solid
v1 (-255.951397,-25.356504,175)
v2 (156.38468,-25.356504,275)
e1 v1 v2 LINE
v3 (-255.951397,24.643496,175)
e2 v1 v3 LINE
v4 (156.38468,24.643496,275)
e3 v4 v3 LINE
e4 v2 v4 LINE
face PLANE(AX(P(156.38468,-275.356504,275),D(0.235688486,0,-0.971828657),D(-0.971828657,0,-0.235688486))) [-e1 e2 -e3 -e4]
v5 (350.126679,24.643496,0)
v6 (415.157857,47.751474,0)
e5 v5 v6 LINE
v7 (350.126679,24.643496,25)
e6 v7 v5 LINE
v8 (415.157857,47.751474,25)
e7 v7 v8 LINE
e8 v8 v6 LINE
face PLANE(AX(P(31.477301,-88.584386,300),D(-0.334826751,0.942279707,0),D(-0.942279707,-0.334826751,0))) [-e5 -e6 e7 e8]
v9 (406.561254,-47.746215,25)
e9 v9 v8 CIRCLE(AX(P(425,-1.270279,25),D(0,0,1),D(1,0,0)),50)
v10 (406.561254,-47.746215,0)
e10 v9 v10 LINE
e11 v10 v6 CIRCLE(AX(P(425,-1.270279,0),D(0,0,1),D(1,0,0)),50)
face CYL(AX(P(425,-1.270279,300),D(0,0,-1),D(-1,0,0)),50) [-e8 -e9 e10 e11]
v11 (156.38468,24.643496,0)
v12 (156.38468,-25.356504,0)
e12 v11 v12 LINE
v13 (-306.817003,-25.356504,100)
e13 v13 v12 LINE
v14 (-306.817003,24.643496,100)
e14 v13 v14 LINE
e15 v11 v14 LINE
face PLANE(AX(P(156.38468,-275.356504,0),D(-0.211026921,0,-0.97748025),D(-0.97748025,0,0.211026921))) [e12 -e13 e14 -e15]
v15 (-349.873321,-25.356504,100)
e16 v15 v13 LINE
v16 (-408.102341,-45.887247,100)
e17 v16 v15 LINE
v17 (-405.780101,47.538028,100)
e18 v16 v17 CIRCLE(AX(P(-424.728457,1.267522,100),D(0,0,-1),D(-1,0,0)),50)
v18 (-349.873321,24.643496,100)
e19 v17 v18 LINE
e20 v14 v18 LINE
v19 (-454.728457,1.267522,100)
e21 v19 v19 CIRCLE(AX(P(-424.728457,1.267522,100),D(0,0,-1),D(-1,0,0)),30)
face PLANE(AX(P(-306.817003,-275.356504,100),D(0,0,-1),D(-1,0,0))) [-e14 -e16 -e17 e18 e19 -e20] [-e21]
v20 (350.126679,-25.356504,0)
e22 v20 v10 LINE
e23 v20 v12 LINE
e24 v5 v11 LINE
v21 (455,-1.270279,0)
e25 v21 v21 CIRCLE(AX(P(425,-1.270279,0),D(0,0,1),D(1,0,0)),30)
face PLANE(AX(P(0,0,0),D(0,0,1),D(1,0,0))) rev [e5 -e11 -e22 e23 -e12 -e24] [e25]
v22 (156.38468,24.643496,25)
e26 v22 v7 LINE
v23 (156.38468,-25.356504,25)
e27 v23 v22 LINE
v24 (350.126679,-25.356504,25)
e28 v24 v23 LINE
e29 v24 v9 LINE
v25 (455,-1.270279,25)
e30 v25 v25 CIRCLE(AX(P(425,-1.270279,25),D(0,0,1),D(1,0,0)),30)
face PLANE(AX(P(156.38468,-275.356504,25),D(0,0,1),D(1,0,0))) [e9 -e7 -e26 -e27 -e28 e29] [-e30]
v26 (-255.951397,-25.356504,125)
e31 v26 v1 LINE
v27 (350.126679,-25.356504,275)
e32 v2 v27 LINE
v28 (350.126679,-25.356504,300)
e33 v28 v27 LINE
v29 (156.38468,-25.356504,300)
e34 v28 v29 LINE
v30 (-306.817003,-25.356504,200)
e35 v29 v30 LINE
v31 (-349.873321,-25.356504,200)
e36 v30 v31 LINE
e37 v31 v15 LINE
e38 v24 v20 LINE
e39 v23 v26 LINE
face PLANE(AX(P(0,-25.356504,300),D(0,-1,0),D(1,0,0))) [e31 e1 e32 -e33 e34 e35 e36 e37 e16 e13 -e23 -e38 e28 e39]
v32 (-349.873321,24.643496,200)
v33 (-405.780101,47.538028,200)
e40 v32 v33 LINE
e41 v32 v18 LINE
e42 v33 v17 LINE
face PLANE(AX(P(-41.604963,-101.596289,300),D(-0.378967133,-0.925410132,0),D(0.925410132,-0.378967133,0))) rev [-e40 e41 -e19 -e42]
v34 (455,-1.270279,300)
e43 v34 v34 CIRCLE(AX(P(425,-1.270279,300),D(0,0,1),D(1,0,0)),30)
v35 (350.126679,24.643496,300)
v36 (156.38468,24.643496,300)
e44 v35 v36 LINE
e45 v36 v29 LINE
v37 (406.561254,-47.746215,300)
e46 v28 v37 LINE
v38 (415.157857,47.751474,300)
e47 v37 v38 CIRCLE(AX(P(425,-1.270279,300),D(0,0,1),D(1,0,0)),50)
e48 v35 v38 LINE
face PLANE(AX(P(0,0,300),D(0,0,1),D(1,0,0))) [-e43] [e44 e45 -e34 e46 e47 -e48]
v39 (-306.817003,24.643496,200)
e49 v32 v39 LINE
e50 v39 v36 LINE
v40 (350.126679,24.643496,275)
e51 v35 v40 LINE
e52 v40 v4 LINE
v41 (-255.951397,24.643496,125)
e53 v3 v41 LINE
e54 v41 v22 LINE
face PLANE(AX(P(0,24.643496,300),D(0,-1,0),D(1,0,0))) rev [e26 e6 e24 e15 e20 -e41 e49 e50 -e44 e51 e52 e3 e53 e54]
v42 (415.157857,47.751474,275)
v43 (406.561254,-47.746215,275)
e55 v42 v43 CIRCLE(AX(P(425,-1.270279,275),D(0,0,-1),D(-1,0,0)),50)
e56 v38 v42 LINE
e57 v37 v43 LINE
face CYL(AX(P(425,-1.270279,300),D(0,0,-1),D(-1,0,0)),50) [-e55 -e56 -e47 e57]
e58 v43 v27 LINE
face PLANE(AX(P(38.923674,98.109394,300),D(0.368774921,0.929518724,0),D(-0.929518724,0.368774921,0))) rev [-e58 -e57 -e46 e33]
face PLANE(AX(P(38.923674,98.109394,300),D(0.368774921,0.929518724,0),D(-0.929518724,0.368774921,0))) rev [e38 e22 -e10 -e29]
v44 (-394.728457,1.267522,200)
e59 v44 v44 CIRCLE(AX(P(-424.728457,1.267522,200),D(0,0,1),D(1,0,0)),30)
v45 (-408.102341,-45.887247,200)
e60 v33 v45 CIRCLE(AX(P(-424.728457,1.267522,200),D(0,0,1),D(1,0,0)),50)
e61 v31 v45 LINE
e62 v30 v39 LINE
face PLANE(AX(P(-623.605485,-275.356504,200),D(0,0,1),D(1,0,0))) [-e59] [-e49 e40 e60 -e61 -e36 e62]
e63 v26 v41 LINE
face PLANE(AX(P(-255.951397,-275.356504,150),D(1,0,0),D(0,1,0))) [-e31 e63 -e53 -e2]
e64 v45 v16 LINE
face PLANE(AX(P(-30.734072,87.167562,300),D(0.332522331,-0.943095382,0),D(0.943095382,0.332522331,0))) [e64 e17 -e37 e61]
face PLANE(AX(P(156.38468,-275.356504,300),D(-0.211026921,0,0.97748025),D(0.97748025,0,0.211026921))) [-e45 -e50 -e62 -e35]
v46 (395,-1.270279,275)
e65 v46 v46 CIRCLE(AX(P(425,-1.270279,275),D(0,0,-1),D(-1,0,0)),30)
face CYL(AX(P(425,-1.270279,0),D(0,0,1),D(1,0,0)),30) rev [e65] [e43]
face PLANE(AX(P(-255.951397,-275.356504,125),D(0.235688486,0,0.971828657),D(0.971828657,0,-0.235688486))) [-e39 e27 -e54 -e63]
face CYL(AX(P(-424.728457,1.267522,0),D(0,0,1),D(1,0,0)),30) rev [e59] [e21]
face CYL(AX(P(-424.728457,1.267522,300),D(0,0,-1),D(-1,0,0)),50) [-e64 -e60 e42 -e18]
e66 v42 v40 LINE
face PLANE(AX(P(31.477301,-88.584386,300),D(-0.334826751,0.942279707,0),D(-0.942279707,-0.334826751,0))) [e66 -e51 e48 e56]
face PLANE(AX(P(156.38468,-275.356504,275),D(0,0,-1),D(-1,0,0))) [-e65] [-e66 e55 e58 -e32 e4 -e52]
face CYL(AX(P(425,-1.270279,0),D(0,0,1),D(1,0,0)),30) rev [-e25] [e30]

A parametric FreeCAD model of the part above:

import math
import FreeCAD as App
import Part
import Sketcher
Q = App.Units.Quantity


def add_polygon(sketch, points):
    """Adds a closed chain of lines whose ends are joined by coincident constraints."""
    first, n = sketch.GeometryCount, len(points)
    for a, b in zip(points, points[1:] + points[:1]):
        sketch.addGeometry(Part.LineSegment(App.Vector(*a, 0), App.Vector(*b, 0)), False)
    for i in range(n):
        sketch.addConstraint(Sketcher.Constraint("Coincident", first + i, 2, first + (i + 1) % n, 1))

doc = App.newDocument("Part")
params = doc.addObject("Spreadsheet::Sheet", "Params")
for row, (alias, value) in enumerate([
    ("sketch1_radius", "50 mm"),
    ("sketch1_width", "700 mm"),
    ("pad1_length", "300 mm"),
    ("sketch2_height", "50 mm"),
    ("pocket1_length", "300 mm"),
    ("sketch3_height", "50 mm"),
    ("sketch3_height2", "250 mm"),
    ("pocket2_length", "300 mm"),
    ("sketch4_diameter", "60 mm"),
    ("pocket3_length", "400 mm"),
], start=1):
    params.set(f"A{row}", alias)
    params.set(f"B{row}", "=" + value)
    params.setAlias(f"B{row}", alias)

body = doc.addObject("PartDesign::Body", "Body")

sketch1 = body.newObject("Sketcher::SketchObject", "Sketch")
sketch1.AttachmentSupport = (doc.getObject("XY_Plane"), [""])
sketch1.MapMode = "FlatFace"
sketch1.addGeometry([
    Part.LineSegment(App.Vector(350.126679, 24.643496, 0), App.Vector(-349.873321, 24.643496, 0)),
    Part.LineSegment(App.Vector(-349.873321, 24.643496, 0), App.Vector(-405.780101, 47.538028, 0)),
    Part.ArcOfCircle(Part.Circle(App.Vector(-424.728457, 1.267522, 0), App.Vector(0, 0, 1), 50), math.radians(67.730281), math.radians(289.421942)),
    Part.LineSegment(App.Vector(-408.102341, -45.887247, 0), App.Vector(-349.873321, -25.356504, 0)),
    Part.LineSegment(App.Vector(-349.873321, -25.356504, 0), App.Vector(350.126679, -25.356504, 0)),
    Part.LineSegment(App.Vector(350.126679, -25.356504, 0), App.Vector(406.561254, -47.746215, 0)),
    Part.ArcOfCircle(Part.Circle(App.Vector(425, -1.270279, 0), App.Vector(0, 0, 1), 50), math.radians(-111.640083), math.radians(101.352398)),
    Part.LineSegment(App.Vector(415.157857, 47.751474, 0), App.Vector(401.702588, 42.97032, 0)),
    Part.LineSegment(App.Vector(401.702588, 42.97032, 0), App.Vector(350.126679, 24.643496, 0)),
], False)
sketch1.addConstraint([
    Sketcher.Constraint("Coincident", 0, 2, 1, 1),
    Sketcher.Constraint("Tangent", 1, 2, 2, 1),
    Sketcher.Constraint("Tangent", 2, 2, 3, 1),
    Sketcher.Constraint("Coincident", 3, 2, 4, 1),
    Sketcher.Constraint("Coincident", 4, 2, 5, 1),
    Sketcher.Constraint("Tangent", 5, 2, 6, 1),
    Sketcher.Constraint("Coincident", 6, 2, 7, 1),
    Sketcher.Constraint("Coincident", 7, 2, 8, 1),
    Sketcher.Constraint("Coincident", 8, 2, 0, 1),
    Sketcher.Constraint("Horizontal", 0),
    Sketcher.Constraint("Horizontal", 4),
    Sketcher.Constraint("Equal", 2, 6),
    Sketcher.Constraint("Parallel", 7, 8),
    Sketcher.Constraint("Vertical", 0, 2, 3, 2),
    Sketcher.Constraint("Vertical", 4, 2, 8, 2),
    Sketcher.Constraint("Radius", 2, Q("50 mm")),
    Sketcher.Constraint("DistanceX", 0, 2, 0, 1, Q("700 mm")),
    Sketcher.Constraint("DistanceX", -1, 1, 6, 3, Q("425 mm")),
    Sketcher.Constraint("DistanceY", 3, 2, 0, 2, Q("50 mm")),
    Sketcher.Constraint("DistanceX", 1, 2, -1, 1, Q("405.780101 mm")),
    Sketcher.Constraint("DistanceY", 6, 3, 2, 3, Q("2.537801 mm")),
    Sketcher.Constraint("DistanceY", 6, 3, 7, 2, Q("44.240599 mm")),
    Sketcher.Constraint("Distance", 3, Q("61.74245 mm")),
    Sketcher.Constraint("Distance", 5, Q("60.713758 mm")),
    Sketcher.Constraint("DistanceY", -1, 1, 2, 3, Q("1.267522 mm")),
    Sketcher.Constraint("DistanceY", 5, 2, 6, 2, Q("95.497689 mm")),
])
sketch1.setExpression("Constraints[15]", "Params.sketch1_radius")
sketch1.setExpression("Constraints[16]", "Params.sketch1_width")
pad1 = body.newObject("PartDesign::Pad", "Pad")
pad1.Profile = sketch1
pad1.setExpression("Length", "Params.pad1_length")

sketch2 = body.newObject("Sketcher::SketchObject", "Sketch001")
sketch2.AttachmentSupport = (doc.getObject("XZ_Plane"), [""])
sketch2.MapMode = "FlatFace"
sketch2.AttachmentOffset = App.Placement(App.Vector(0, 0, -24.643496), App.Rotation())
add_polygon(sketch2, [(-575.853, 200), (-575.853, 401.125), (576.125, 401.125), (576.125, 25), (156.38468, 25), (-255.951397, 125), (-255.951397, 175), (156.38468, 275), (523.266387, 275), (568.093934, 300), (156.38468, 300), (-306.817003, 200)])
add_polygon(sketch2, [(-575.853, -101.125), (-575.853, 100), (-306.817003, 100), (156.38468, 0), (576.125, 0), (576.125, -101.125)])
sketch2.addConstraint([
    Sketcher.Constraint("Vertical", 0),
    Sketcher.Constraint("Horizontal", 1),
    Sketcher.Constraint("Vertical", 2),
    Sketcher.Constraint("Horizontal", 3),
    Sketcher.Constraint("Vertical", 5),
    Sketcher.Constraint("Horizontal", 7),
    Sketcher.Constraint("Horizontal", 9),
    Sketcher.Constraint("Horizontal", 11),
    Sketcher.Constraint("Vertical", 12),
    Sketcher.Constraint("Horizontal", 13),
    Sketcher.Constraint("Horizontal", 15),
    Sketcher.Constraint("Vertical", 16),
    Sketcher.Constraint("Horizontal", 17),
    Sketcher.Constraint("PointOnObject", 14, 2, -1),
    Sketcher.Constraint("Vertical", 3, 2, 6, 2),
    Sketcher.Constraint("Vertical", 6, 2, 9, 2),
    Sketcher.Constraint("Vertical", 11, 2, 12, 2),
    Sketcher.Constraint("Vertical", 10, 2, 13, 2),
    Sketcher.Constraint("Vertical", 9, 2, 14, 2),
    Sketcher.Constraint("Vertical", 2, 2, 15, 2),
    Sketcher.Constraint("Equal", 0, 12),
    Sketcher.Constraint("Equal", 4, 6),
    Sketcher.Constraint("Equal", 10, 14),
    Sketcher.Constraint("DistanceY", 5, 1, 5, 2, Q("50 mm")),
    Sketcher.Constraint("DistanceY", -1, 1, 2, 2, Q("25 mm")),
    Sketcher.Constraint("DistanceY", -1, 1, 4, 2, Q("125 mm")),
    Sketcher.Constraint("DistanceY", -1, 1, 8, 2, Q("300 mm")),
    Sketcher.Constraint("DistanceY", -1, 1, 10, 2, Q("200 mm")),
    Sketcher.Constraint("DistanceX", 1, 1, 1, 2, Q("1151.978 mm")),
    Sketcher.Constraint("DistanceY", 0, 1, 0, 2, Q("201.125 mm")),
    Sketcher.Constraint("DistanceX", 0, 2, -1, 1, Q("575.853 mm")),
    Sketcher.Constraint("DistanceX", 3, 2, 3, 1, Q("419.74032 mm")),
    Sketcher.Constraint("Distance", 10, Q("473.873189 mm")),
    Sketcher.Constraint("DistanceX", 7, 1, 7, 2, Q("366.881707 mm")),
    Sketcher.Constraint("DistanceX", 9, 2, 9, 1, Q("411.709253 mm")),
    Sketcher.Constraint("Distance", 4, Q("424.288865 mm")),
])
sketch2.setExpression("Constraints[41]", "Params.sketch2_height")
pocket1 = body.newObject("PartDesign::Pocket", "Pocket")
pocket1.Profile = sketch2
pocket1.setExpression("Length", "Params.pocket1_length")
pocket1.Reversed = True

sketch3 = body.newObject("Sketcher::SketchObject", "Sketch002")
sketch3.AttachmentSupport = (doc.getObject("XZ_Plane"), [""])
sketch3.MapMode = "FlatFace"
sketch3.AttachmentOffset = App.Placement(App.Vector(0, 0, -24.643496), App.Rotation())
add_polygon(sketch3, [(555.921134, 25), (156.38468, 25), (-255.951397, 125), (-255.951397, 175), (156.38468, 275), (555.921134, 275)])
add_polygon(sketch3, [(-477.733616, 100), (-349.873321, 100), (-332.077067, -50.340528), (-477.733616, -50.340528)])
add_polygon(sketch3, [(-349.873321, 364.123748), (-349.873321, 200), (-481.519399, 200), (-511.890412, 324.647412)])
sketch3.addConstraint([
    Sketcher.Constraint("Horizontal", 0),
    Sketcher.Constraint("Vertical", 2),
    Sketcher.Constraint("Horizontal", 4),
    Sketcher.Constraint("Vertical", 5),
    Sketcher.Constraint("Horizontal", 6),
    Sketcher.Constraint("Horizontal", 8),
    Sketcher.Constraint("Vertical", 9),
    Sketcher.Constraint("Vertical", 10),
    Sketcher.Constraint("Horizontal", 11),
    Sketcher.Constraint("Perpendicular", 12, 13),
    Sketcher.Constraint("Vertical", 0, 2, 3, 2),
    Sketcher.Constraint("Vertical", 6, 2, 10, 2),
    Sketcher.Constraint("Equal", 1, 3),
    Sketcher.Constraint("DistanceY", 2, 1, 2, 2, Q("50 mm")),
    Sketcher.Constraint("DistanceY", 5, 2, 5, 1, Q("250 mm")),
    Sketcher.Constraint("DistanceY", -1, 1, 0, 2, Q("25 mm")),
    Sketcher.Constraint("DistanceY", -1, 1, 6, 2, Q("100 mm")),
    Sketcher.Constraint("DistanceY", -1, 1, 10, 2, Q("200 mm")),
    Sketcher.Constraint("DistanceX", 6, 2, 0, 2, Q("506.258001 mm")),
    Sketcher.Constraint("Distance", 12, Q("128.294098 mm")),
    Sketcher.Constraint("DistanceX", 8, 2, 8, 1, Q("145.656548 mm")),
    Sketcher.Constraint("DistanceX", 11, 2, 11, 1, Q("131.646078 mm")),
    Sketcher.Constraint("DistanceY", 10, 2, 10, 1, Q("164.123748 mm")),
    Sketcher.Constraint("DistanceX", 11, 2, -1, 1, Q("481.519399 mm")),
    Sketcher.Constraint("Distance", 7, Q("151.390162 mm")),
    Sketcher.Constraint("DistanceX", 0, 2, 0, 1, Q("399.536454 mm")),
    Sketcher.Constraint("DistanceX", 6, 1, 6, 2, Q("127.860295 mm")),
    Sketcher.Constraint("DistanceX", 2, 2, 4, 2, Q("811.872532 mm")),
])
sketch3.setExpression("Constraints[27]", "Params.sketch3_height")
sketch3.setExpression("Constraints[28]", "Params.sketch3_height2")
pocket2 = body.newObject("PartDesign::Pocket", "Pocket001")
pocket2.Profile = sketch3
pocket2.setExpression("Length", "Params.pocket2_length")

sketch4 = body.newObject("Sketcher::SketchObject", "Sketch003")
sketch4.AttachmentSupport = (doc.getObject("XY_Plane"), [""])
sketch4.MapMode = "FlatFace"
sketch4.AttachmentOffset = App.Placement(App.Vector(0, 0, 200), App.Rotation())
sketch4.addGeometry([
    Part.Circle(App.Vector(-424.728457, 1.267522, 0), App.Vector(0, 0, 1), 30),
    Part.Circle(App.Vector(425, -1.270279, 0), App.Vector(0, 0, 1), 30),
], False)
sketch4.addConstraint([
    Sketcher.Constraint("Equal", 0, 1),
    Sketcher.Constraint("Diameter", 0, Q("60 mm")),
    Sketcher.Constraint("DistanceX", -1, 1, 1, 3, Q("425 mm")),
    Sketcher.Constraint("DistanceY", 1, 3, 0, 3, Q("2.537801 mm")),
    Sketcher.Constraint("DistanceY", -1, 1, 0, 3, Q("1.267522 mm")),
    Sketcher.Constraint("DistanceX", 0, 3, -1, 1, Q("424.728457 mm")),
])
sketch4.setExpression("Constraints[1]", "Params.sketch4_diameter")
pocket3 = body.newObject("PartDesign::Pocket", "Pocket002")
pocket3.Profile = sketch4
pocket3.setExpression("Length", "Params.pocket3_length")
pocket3.Midplane = True

doc.recompute()
